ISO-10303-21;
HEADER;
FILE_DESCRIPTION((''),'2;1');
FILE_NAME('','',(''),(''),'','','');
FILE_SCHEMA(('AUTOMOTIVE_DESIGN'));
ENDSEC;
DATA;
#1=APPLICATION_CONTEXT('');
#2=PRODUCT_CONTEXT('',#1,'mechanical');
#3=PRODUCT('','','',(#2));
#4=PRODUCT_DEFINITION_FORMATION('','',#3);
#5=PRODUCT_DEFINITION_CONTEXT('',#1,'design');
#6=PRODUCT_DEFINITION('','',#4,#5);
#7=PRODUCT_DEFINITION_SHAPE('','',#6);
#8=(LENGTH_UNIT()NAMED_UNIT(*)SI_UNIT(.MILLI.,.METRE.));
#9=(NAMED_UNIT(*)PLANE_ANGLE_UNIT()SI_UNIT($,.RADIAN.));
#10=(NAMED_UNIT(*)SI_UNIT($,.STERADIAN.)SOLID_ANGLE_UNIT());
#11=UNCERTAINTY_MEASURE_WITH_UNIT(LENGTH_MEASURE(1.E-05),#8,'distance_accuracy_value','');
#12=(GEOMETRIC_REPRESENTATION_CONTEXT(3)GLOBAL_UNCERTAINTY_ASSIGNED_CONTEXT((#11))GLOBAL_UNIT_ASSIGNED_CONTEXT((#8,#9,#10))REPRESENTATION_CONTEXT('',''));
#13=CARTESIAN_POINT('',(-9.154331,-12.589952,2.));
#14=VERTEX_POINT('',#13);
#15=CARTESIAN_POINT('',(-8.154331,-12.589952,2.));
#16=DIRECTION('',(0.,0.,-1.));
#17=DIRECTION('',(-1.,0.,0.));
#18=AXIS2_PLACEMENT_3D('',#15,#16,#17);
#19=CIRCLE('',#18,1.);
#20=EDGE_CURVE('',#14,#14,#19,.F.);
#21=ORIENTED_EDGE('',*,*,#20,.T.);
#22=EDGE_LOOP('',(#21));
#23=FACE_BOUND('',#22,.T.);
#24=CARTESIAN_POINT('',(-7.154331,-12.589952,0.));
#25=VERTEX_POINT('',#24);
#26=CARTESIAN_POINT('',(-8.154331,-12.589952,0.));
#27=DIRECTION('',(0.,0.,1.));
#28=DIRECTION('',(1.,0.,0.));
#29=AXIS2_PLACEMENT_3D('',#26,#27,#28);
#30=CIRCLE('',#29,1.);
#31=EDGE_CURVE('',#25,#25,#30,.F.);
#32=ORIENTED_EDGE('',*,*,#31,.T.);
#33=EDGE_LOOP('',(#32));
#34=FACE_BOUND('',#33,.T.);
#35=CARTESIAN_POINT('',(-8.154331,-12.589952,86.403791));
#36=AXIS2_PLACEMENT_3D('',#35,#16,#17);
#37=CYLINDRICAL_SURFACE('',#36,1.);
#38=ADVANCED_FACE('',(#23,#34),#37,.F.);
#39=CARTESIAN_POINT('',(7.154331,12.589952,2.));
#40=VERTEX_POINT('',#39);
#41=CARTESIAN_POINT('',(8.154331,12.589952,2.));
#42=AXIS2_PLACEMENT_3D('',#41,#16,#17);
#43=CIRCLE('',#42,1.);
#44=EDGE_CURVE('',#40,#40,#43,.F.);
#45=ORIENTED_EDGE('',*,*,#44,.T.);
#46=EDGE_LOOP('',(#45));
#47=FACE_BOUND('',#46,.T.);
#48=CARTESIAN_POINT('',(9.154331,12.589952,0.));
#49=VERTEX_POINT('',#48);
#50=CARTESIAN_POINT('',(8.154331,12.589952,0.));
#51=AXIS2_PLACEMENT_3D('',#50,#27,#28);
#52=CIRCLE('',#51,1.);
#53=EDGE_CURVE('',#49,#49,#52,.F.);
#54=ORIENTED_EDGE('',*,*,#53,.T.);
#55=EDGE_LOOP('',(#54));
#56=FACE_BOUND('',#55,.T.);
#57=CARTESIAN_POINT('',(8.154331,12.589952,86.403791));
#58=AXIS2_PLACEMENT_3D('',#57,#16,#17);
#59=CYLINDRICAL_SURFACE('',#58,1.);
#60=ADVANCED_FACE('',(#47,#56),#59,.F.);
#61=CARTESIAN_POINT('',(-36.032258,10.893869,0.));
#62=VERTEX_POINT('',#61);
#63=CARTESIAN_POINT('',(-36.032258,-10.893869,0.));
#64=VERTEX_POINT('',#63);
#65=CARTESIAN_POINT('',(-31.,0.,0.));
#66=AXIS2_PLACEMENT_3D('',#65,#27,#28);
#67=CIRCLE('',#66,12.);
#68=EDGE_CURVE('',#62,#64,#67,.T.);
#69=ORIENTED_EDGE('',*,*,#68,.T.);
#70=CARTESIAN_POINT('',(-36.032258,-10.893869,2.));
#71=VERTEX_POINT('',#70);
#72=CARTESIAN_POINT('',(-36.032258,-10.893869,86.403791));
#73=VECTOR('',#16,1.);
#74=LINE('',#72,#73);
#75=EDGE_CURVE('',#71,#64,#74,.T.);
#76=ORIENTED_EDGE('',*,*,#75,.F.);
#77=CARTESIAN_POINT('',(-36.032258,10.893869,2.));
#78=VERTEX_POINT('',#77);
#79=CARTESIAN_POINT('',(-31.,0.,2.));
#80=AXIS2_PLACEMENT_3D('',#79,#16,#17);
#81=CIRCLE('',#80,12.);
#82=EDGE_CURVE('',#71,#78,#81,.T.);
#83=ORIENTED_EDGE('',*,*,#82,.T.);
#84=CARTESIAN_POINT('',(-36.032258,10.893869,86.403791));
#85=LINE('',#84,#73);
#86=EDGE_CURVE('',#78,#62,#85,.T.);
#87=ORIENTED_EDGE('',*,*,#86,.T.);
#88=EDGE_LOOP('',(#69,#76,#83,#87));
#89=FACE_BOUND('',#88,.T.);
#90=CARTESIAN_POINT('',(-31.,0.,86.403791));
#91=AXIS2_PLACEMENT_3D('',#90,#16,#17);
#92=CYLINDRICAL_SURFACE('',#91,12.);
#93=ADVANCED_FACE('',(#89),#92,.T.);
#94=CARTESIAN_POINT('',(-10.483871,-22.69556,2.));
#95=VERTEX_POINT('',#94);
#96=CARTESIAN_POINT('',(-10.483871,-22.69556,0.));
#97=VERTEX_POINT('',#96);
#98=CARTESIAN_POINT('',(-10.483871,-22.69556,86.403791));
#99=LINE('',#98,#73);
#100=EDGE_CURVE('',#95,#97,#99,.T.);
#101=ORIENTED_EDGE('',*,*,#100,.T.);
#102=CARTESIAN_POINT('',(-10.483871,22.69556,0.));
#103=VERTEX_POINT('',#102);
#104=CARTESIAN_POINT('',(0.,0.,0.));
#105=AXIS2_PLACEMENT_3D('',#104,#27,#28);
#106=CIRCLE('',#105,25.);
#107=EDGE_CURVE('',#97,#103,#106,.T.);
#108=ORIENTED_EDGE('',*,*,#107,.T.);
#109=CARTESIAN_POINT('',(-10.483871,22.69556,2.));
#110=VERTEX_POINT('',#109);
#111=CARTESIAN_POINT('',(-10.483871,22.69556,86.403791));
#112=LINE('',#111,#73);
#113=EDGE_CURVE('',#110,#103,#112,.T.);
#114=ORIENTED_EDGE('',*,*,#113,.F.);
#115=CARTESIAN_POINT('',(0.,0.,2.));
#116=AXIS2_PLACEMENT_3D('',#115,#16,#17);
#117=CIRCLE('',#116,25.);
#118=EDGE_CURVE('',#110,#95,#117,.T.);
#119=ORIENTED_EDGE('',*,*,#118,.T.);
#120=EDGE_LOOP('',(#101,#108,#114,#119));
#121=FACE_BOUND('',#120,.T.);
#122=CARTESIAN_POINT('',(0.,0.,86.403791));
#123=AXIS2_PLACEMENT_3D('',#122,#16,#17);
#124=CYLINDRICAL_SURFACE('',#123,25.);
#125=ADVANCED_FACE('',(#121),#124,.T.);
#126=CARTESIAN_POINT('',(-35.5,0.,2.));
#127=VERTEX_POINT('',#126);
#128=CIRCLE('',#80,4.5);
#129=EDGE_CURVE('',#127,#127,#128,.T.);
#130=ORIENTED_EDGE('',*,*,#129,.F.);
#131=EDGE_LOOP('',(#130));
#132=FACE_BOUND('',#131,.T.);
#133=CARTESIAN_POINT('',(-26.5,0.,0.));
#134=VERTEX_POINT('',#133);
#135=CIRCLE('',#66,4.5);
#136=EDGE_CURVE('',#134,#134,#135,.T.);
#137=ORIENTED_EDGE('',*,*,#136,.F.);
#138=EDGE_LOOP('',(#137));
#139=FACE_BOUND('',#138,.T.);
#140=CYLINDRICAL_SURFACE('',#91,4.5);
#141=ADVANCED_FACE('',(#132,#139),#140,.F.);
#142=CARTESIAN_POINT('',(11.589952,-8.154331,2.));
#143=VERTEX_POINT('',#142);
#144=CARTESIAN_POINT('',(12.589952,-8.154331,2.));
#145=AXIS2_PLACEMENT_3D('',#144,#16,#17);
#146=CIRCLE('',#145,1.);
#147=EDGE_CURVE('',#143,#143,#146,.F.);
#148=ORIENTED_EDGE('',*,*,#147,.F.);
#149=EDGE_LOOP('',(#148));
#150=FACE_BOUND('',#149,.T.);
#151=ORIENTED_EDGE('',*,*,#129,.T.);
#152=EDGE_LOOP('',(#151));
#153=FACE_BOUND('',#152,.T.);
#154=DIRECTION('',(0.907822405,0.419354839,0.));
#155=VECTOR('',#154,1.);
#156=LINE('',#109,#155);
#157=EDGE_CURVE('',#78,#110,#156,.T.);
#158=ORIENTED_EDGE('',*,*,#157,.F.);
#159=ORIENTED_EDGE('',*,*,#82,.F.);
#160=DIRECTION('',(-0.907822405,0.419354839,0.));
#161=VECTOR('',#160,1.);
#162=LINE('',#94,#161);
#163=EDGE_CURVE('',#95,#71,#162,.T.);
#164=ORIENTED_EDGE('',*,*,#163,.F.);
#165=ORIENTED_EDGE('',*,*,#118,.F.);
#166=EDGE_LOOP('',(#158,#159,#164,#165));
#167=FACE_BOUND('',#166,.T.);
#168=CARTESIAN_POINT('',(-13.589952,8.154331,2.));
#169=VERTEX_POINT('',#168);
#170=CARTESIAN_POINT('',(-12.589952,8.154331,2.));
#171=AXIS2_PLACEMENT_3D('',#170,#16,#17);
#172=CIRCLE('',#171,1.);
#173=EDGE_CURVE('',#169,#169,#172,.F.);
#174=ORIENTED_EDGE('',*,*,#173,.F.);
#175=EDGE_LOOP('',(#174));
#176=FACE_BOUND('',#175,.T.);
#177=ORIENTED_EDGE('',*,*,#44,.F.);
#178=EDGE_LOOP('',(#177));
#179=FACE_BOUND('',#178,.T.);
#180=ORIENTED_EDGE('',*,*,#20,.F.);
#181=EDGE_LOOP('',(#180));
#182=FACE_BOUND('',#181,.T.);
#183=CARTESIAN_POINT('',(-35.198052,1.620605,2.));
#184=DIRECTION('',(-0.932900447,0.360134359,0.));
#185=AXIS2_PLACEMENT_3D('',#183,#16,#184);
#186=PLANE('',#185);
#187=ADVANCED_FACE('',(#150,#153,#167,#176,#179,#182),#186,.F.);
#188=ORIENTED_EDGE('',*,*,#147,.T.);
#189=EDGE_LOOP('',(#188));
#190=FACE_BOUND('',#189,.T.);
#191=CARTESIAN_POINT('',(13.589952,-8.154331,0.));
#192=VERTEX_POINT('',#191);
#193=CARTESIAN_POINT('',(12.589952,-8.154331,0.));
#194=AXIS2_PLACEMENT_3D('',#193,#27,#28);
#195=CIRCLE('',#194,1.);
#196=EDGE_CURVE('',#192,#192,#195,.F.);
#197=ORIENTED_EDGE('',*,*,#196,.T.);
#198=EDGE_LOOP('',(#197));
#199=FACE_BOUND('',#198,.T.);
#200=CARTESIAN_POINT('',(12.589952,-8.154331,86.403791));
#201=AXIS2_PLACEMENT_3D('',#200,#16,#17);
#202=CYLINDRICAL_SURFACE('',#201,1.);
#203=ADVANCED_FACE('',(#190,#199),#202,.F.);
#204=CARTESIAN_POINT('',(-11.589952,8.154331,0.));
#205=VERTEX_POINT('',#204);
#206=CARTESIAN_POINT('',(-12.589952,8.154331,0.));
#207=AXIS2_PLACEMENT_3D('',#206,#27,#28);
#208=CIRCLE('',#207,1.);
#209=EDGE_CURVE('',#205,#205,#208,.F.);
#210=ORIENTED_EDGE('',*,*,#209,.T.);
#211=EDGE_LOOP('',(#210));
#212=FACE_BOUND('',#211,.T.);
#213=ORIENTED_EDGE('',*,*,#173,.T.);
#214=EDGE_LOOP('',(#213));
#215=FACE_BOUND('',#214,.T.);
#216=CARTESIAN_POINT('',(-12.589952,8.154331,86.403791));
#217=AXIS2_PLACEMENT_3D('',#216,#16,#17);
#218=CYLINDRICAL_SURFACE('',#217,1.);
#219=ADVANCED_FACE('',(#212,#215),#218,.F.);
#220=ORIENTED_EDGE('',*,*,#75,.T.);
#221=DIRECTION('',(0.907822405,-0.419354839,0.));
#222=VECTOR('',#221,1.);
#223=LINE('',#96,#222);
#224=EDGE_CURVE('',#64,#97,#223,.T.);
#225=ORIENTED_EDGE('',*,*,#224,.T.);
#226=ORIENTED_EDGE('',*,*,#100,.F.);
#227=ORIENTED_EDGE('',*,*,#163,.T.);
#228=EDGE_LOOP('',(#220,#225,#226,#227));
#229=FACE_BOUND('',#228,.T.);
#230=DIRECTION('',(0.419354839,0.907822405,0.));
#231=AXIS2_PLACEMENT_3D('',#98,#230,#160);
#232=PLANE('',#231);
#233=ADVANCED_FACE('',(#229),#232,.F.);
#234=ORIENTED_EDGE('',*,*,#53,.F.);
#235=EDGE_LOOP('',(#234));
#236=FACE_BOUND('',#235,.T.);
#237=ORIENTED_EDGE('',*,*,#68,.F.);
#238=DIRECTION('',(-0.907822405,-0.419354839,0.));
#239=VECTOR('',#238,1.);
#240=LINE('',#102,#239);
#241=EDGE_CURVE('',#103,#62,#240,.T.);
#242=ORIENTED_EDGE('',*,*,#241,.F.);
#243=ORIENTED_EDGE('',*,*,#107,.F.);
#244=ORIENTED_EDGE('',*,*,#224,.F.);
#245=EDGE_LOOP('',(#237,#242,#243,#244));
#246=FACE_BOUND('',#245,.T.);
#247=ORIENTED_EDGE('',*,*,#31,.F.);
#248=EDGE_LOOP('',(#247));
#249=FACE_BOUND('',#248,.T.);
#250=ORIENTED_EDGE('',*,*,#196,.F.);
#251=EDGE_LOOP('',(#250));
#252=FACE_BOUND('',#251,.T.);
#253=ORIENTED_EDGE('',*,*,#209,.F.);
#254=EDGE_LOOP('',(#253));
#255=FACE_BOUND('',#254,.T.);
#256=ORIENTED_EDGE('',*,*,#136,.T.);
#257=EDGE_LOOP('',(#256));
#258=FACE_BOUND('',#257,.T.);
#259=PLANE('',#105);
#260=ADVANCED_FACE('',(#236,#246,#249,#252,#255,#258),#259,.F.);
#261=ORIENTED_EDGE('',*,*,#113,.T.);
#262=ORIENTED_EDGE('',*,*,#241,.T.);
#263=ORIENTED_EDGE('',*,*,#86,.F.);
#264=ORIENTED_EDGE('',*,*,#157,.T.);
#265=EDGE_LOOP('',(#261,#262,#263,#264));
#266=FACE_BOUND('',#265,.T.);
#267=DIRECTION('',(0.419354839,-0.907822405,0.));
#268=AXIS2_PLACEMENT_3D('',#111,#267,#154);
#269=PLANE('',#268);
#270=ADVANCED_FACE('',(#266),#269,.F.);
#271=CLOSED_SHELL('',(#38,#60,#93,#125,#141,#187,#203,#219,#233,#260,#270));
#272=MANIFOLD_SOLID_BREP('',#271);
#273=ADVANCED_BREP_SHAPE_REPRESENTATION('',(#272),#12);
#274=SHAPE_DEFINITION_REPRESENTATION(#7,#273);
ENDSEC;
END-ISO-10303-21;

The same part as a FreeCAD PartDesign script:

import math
import FreeCAD as App
import Part
import Sketcher

V = App.Vector

doc = App.newDocument("Part")
body = doc.addObject("PartDesign::Body", "Body")

sketch1 = doc.addObject("Sketcher::SketchObject", "Sketch")
body.addObject(sketch1)
sketch1.AttachmentSupport = (doc.XY_Plane, [""])
sketch1.MapMode = "FlatFace"
sketch1.addGeometry([
    Part.ArcOfCircle(Part.Circle(V(-31, 0, 0), V(0, 0, 1), 12), math.radians(114.793862), math.radians(245.206138)),
    Part.LineSegment(V(-36.032258, -10.893869, 0), V(-10.483871, -22.69556, 0)),
    Part.ArcOfCircle(Part.Circle(V(0, 0, 0), V(0, 0, 1), 25), math.radians(-114.793862), math.radians(-25.83333)),
    Part.ArcOfCircle(Part.Circle(V(0, 0, 0), V(0, 0, 1), 25), math.radians(-25.83333), math.radians(25.83333)),
    Part.ArcOfCircle(Part.Circle(V(0, 0, 0), V(0, 0, 1), 25), math.radians(25.83333), math.radians(114.793862)),
    Part.LineSegment(V(-10.483871, 22.69556, 0), V(-36.032258, 10.893869, 0)),
    Part.Circle(V(-8.154331, -12.589952, 0), V(0, 0, 1), 1),
    Part.Circle(V(12.589952, -8.154331, 0), V(0, 0, 1), 1),
    Part.Circle(V(-12.589952, 8.154331, 0), V(0, 0, 1), 1),
    Part.Circle(V(8.154331, 12.589952, 0), V(0, 0, 1), 1),
    Part.Circle(V(-31, 0, 0), V(0, 0, 1), 4.5),
], False)
sketch1.addConstraint([
    Sketcher.Constraint("Tangent", 0, 2, 1, 1),
    Sketcher.Constraint("Tangent", 1, 2, 2, 1),
    Sketcher.Constraint("Tangent", 2, 2, 3, 1),
    Sketcher.Constraint("Tangent", 3, 2, 4, 1),
    Sketcher.Constraint("Tangent", 4, 2, 5, 1),
    Sketcher.Constraint("Tangent", 5, 2, 0, 1),
    Sketcher.Constraint("Coincident", 2, 3, -1, 1),
    Sketcher.Constraint("Coincident", 4, 3, -1, 1),
    Sketcher.Constraint("Coincident", 10, 3, 0, 3),
    Sketcher.Constraint("Equal", 6, 7),
    Sketcher.Constraint("Equal", 7, 8),
    Sketcher.Constraint("Equal", 8, 9),
    Sketcher.Constraint("Symmetric", 7, 3, 8, 3, -1, 1),
    Sketcher.Constraint("Symmetric", 6, 3, 9, 3, -1, 1),
    Sketcher.Constraint("PointOnObject", 0, 3, -1),
    Sketcher.Constraint("Horizontal", 0, 2, 2, 2),
    Sketcher.Constraint("Horizontal", 3, 2, 5, 2),
    Sketcher.Constraint("Diameter", 6, 2.0),
    Sketcher.Constraint("Diameter", 10, 9.0),
    Sketcher.Constraint("Radius", 0, 12.0),
    Sketcher.Constraint("Radius", 2, 25.0),
    Sketcher.Constraint("DistanceX", 0, 3, -1, 1, 31.0),
    Sketcher.Constraint("DistanceY", 0, 2, 8, 3, 19.0482),
    Sketcher.Constraint("DistanceX", 4, 2, 9, 3, 18.638202),
    Sketcher.Constraint("DistanceY", 6, 3, -1, 1, 12.589952),
    Sketcher.Constraint("DistanceX", -1, 1, 7, 3, 12.589952),
])
pad1 = doc.addObject("PartDesign::Pad", "Pad")
body.addObject(pad1)
pad1.Profile = sketch1
pad1.Length = 2

doc.recompute()
